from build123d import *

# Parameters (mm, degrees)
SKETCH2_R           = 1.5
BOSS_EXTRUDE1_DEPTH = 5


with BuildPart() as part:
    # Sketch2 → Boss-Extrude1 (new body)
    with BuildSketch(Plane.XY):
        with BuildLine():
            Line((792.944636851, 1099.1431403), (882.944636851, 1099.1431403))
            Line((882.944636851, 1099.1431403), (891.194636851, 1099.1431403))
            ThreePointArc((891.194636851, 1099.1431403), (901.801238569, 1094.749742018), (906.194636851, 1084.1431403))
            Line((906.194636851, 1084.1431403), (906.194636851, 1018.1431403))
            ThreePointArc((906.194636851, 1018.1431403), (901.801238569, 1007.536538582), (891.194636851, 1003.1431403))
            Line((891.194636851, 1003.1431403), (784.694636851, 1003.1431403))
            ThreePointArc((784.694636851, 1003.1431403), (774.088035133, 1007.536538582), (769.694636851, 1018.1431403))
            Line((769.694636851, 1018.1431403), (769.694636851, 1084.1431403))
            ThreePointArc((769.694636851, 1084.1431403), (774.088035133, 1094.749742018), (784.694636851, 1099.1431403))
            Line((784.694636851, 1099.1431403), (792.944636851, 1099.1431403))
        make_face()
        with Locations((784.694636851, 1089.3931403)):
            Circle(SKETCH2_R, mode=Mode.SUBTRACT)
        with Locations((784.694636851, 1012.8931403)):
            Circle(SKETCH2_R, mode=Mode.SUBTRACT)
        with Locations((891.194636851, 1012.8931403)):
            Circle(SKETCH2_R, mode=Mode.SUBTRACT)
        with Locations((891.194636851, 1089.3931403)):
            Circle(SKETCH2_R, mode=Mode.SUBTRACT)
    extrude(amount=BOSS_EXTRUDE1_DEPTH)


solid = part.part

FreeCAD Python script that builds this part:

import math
import FreeCAD as App
import Part
import Sketcher

V = App.Vector

doc = App.newDocument("Part")
body = doc.addObject("PartDesign::Body", "Body")

# Sketch on XY plane
sketch1 = doc.addObject("Sketcher::SketchObject", "Sketch")
body.addObject(sketch1)
sketch1.AttachmentSupport = (doc.XY_Plane, [""])
sketch1.MapMode = "FlatFace"
sketch1.addGeometry(Part.ArcOfCircle(Part.Circle(V(891.2, 1084.1, 0), V(0, 0, 1), 15), math.radians(0), math.radians(90)), False)
sketch1.addGeometry(Part.LineSegment(V(891.2, 1099.1, 0), V(784.7, 1099.1, 0)), False)
sketch1.addGeometry(Part.ArcOfCircle(Part.Circle(V(784.7, 1084.1, 0), V(0, 0, 1), 15), math.radians(90), math.radians(180)), False)
sketch1.addGeometry(Part.LineSegment(V(769.7, 1084.1, 0), V(769.7, 1018.1, 0)), False)
sketch1.addGeometry(Part.ArcOfCircle(Part.Circle(V(784.7, 1018.1, 0), V(0, 0, 1), 15), math.radians(180), math.radians(270)), False)
sketch1.addGeometry(Part.LineSegment(V(784.7, 1003.1, 0), V(891.2, 1003.1, 0)), False)
sketch1.addGeometry(Part.ArcOfCircle(Part.Circle(V(891.2, 1018.1, 0), V(0, 0, 1), 15), math.radians(-90), math.radians(0)), False)
sketch1.addGeometry(Part.LineSegment(V(906.2, 1018.1, 0), V(906.2, 1084.1, 0)), False)
sketch1.addGeometry(Part.Circle(V(891.2, 1012.9, 0), V(0, 0, 1), 1.5), False)
sketch1.addGeometry(Part.Circle(V(784.7, 1012.9, 0), V(0, 0, 1), 1.5), False)
sketch1.addGeometry(Part.Circle(V(891.2, 1089.4, 0), V(0, 0, 1), 1.5), False)
sketch1.addGeometry(Part.Circle(V(784.7, 1089.4, 0), V(0, 0, 1), 1.5), False)
sketch1.addConstraint(Sketcher.Constraint("Tangent", 0, 2, 1, 1))
sketch1.addConstraint(Sketcher.Constraint("Tangent", 1, 2, 2, 1))
sketch1.addConstraint(Sketcher.Constraint("Tangent", 2, 2, 3, 1))
sketch1.addConstraint(Sketcher.Constraint("Tangent", 3, 2, 4, 1))
sketch1.addConstraint(Sketcher.Constraint("Tangent", 4, 2, 5, 1))
sketch1.addConstraint(Sketcher.Constraint("Tangent", 5, 2, 6, 1))
sketch1.addConstraint(Sketcher.Constraint("Tangent", 6, 2, 7, 1))
sketch1.addConstraint(Sketcher.Constraint("Tangent", 7, 2, 0, 1))
sketch1.addConstraint(Sketcher.Constraint("Horizontal", 1))
sketch1.addConstraint(Sketcher.Constraint("Vertical", 3))
sketch1.addConstraint(Sketcher.Constraint("Horizontal", 5))
sketch1.addConstraint(Sketcher.Constraint("Vertical", 7))
sketch1.addConstraint(Sketcher.Constraint("Equal", 0, 2))
sketch1.addConstraint(Sketcher.Constraint("Equal", 2, 4))
sketch1.addConstraint(Sketcher.Constraint("Equal", 4, 6))
sketch1.addConstraint(Sketcher.Constraint("Equal", 8, 9))
sketch1.addConstraint(Sketcher.Constraint("Equal", 9, 10))
sketch1.addConstraint(Sketcher.Constraint("Equal", 10, 11))
sketch1.addConstraint(Sketcher.Constraint("Horizontal", 8, 3, 9, 3))
sketch1.addConstraint(Sketcher.Constraint("Horizontal", 10, 3, 11, 3))
sketch1.addConstraint(Sketcher.Constraint("Vertical", 6, 3, 8, 3))
sketch1.addConstraint(Sketcher.Constraint("Vertical", 4, 3, 9, 3))
sketch1.addConstraint(Sketcher.Constraint("Vertical", 8, 3, 10, 3))
sketch1.addConstraint(Sketcher.Constraint("Vertical", 9, 3, 11, 3))
sketch1.addConstraint(Sketcher.Constraint("Diameter", 8, 3.0))
sketch1.addConstraint(Sketcher.Constraint("Radius", 0, 15.0))
sketch1.addConstraint(Sketcher.Constraint("DistanceY", 3, 2, 3, 1, 66.0))
sketch1.addConstraint(Sketcher.Constraint("DistanceX", 1, 2, 1, 1, 106.5))
sketch1.addConstraint(Sketcher.Constraint("DistanceY", 8, 3, 10, 3, 76.5))
sketch1.addConstraint(Sketcher.Constraint("DistanceY", 8, 3, 6, 3, 5.25))
sketch1.addConstraint(Sketcher.Constraint("DistanceY", -1, 1, 0, 3, 1084.14314))
sketch1.addConstraint(Sketcher.Constraint("DistanceX", -1, 1, 0, 3, 891.194637))
pad1 = doc.addObject("PartDesign::Pad", "Pad")
body.addObject(pad1)
pad1.Profile = sketch1
pad1.Length = 5

doc.recompute()
